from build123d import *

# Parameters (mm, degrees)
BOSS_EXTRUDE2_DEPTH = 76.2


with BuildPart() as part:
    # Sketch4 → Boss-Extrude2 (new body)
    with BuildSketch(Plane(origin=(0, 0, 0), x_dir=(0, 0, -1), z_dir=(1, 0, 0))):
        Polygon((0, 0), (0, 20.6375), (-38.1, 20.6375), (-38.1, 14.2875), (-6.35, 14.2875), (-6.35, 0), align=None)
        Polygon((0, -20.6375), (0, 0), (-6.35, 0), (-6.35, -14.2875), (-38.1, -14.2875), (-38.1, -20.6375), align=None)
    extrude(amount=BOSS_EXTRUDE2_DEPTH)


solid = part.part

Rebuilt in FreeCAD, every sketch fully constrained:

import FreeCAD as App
import Part
import Sketcher
from FreeCAD import Vector
Q = App.Units.Quantity


def add_polygon(sketch, points):
    """Adds a closed chain of lines whose ends are joined by coincident constraints."""
    first, n = sketch.GeometryCount, len(points)
    for a, b in zip(points, points[1:] + points[:1]):
        sketch.addGeometry(Part.LineSegment(App.Vector(*a, 0), App.Vector(*b, 0)), False)
    for i in range(n):
        sketch.addConstraint(Sketcher.Constraint("Coincident", first + i, 2, first + (i + 1) % n, 1))

doc = App.newDocument("Part")
body = doc.addObject("PartDesign::Body", "Body")

sketch1 = body.newObject("Sketcher::SketchObject", "Sketch")
sketch1.AttachmentSupport = (doc.getObject("YZ_Plane"), [""])
sketch1.MapMode = "FlatFace"
add_polygon(sketch1, [(21, 0), (21, 38), (14, 38), (14, 6), (-14, 6), (-14, 38), (-21, 38), (-21, 0)])
sketch1.addConstraint(Sketcher.Constraint("Vertical", 0))
sketch1.addConstraint(Sketcher.Constraint("Horizontal", 1))
sketch1.addConstraint(Sketcher.Constraint("Vertical", 2))
sketch1.addConstraint(Sketcher.Constraint("Horizontal", 3))
sketch1.addConstraint(Sketcher.Constraint("Vertical", 4))
sketch1.addConstraint(Sketcher.Constraint("Horizontal", 5))
sketch1.addConstraint(Sketcher.Constraint("Vertical", 6))
sketch1.addConstraint(Sketcher.Constraint("Horizontal", 7))
sketch1.addConstraint(Sketcher.Constraint("Symmetric", 6, 2, 7, 2, -1, 1))
sketch1.addConstraint(Sketcher.Constraint("Symmetric", 1, 2, 4, 2, -2))
sketch1.addConstraint(Sketcher.Constraint("DistanceY", 0, 1, 0, 2, Q("1.5 in")))
sketch1.addConstraint(Sketcher.Constraint("DistanceX", 1, 2, 1, 1, Q("0.25 in")))
sketch1.addConstraint(Sketcher.Constraint("DistanceY", 2, 2, 2, 1, Q("1.25 in")))
sketch1.addConstraint(Sketcher.Constraint("DistanceX", 3, 2, 3, 1, Q("1.125 in")))
pad1 = body.newObject("PartDesign::Pad", "Pad")
pad1.Profile = sketch1
pad1.Length = Q("3 in")

doc.recompute()
